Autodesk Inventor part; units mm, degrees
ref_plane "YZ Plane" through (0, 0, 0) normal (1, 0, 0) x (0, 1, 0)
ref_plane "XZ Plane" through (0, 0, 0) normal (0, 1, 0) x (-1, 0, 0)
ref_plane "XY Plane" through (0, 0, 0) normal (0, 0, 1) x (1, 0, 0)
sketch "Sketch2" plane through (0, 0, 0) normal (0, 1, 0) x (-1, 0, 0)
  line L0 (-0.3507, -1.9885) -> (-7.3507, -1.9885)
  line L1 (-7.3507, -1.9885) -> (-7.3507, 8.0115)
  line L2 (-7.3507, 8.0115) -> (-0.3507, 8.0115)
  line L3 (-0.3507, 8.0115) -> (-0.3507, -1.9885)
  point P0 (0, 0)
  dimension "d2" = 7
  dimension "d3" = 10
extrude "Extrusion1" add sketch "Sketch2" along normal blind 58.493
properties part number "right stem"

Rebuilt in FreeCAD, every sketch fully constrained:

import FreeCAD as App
import Part
import Sketcher

V = App.Vector

doc = App.newDocument("Part")
body = doc.addObject("PartDesign::Body", "Body")

sketch1 = doc.addObject("Sketcher::SketchObject", "Sketch")
body.addObject(sketch1)
sketch1.AttachmentSupport = (doc.XZ_Plane, [""])
sketch1.MapMode = "FlatFace"
sketch1.addGeometry(Part.LineSegment(V(7.3507, -1.9885, 0), V(0.3507, -1.9885, 0)), False)
sketch1.addGeometry(Part.LineSegment(V(0.3507, -1.9885, 0), V(0.3507, 8.0115, 0)), False)
sketch1.addGeometry(Part.LineSegment(V(0.3507, 8.0115, 0), V(7.3507, 8.0115, 0)), False)
sketch1.addGeometry(Part.LineSegment(V(7.3507, 8.0115, 0), V(7.3507, -1.9885, 0)), False)
sketch1.addConstraint(Sketcher.Constraint("Coincident", 0, 2, 1, 1))
sketch1.addConstraint(Sketcher.Constraint("Coincident", 1, 2, 2, 1))
sketch1.addConstraint(Sketcher.Constraint("Coincident", 2, 2, 3, 1))
sketch1.addConstraint(Sketcher.Constraint("Coincident", 3, 2, 0, 1))
sketch1.addConstraint(Sketcher.Constraint("Horizontal", 0))
sketch1.addConstraint(Sketcher.Constraint("Vertical", 1))
sketch1.addConstraint(Sketcher.Constraint("Horizontal", 2))
sketch1.addConstraint(Sketcher.Constraint("Vertical", 3))
sketch1.addConstraint(Sketcher.Constraint("DistanceX", 0, 2, 0, 1, 7.0))
sketch1.addConstraint(Sketcher.Constraint("DistanceY", 1, 1, 1, 2, 10.0))
sketch1.addConstraint(Sketcher.Constraint("DistanceX", -1, 1, 0, 2, 0.3507))
sketch1.addConstraint(Sketcher.Constraint("DistanceY", 0, 2, -1, 1, 1.9885))
pad1 = doc.addObject("PartDesign::Pad", "Pad")
body.addObject(pad1)
pad1.Profile = sketch1
pad1.Length = 58.493
pad1.Reversed = True

doc.recompute()
